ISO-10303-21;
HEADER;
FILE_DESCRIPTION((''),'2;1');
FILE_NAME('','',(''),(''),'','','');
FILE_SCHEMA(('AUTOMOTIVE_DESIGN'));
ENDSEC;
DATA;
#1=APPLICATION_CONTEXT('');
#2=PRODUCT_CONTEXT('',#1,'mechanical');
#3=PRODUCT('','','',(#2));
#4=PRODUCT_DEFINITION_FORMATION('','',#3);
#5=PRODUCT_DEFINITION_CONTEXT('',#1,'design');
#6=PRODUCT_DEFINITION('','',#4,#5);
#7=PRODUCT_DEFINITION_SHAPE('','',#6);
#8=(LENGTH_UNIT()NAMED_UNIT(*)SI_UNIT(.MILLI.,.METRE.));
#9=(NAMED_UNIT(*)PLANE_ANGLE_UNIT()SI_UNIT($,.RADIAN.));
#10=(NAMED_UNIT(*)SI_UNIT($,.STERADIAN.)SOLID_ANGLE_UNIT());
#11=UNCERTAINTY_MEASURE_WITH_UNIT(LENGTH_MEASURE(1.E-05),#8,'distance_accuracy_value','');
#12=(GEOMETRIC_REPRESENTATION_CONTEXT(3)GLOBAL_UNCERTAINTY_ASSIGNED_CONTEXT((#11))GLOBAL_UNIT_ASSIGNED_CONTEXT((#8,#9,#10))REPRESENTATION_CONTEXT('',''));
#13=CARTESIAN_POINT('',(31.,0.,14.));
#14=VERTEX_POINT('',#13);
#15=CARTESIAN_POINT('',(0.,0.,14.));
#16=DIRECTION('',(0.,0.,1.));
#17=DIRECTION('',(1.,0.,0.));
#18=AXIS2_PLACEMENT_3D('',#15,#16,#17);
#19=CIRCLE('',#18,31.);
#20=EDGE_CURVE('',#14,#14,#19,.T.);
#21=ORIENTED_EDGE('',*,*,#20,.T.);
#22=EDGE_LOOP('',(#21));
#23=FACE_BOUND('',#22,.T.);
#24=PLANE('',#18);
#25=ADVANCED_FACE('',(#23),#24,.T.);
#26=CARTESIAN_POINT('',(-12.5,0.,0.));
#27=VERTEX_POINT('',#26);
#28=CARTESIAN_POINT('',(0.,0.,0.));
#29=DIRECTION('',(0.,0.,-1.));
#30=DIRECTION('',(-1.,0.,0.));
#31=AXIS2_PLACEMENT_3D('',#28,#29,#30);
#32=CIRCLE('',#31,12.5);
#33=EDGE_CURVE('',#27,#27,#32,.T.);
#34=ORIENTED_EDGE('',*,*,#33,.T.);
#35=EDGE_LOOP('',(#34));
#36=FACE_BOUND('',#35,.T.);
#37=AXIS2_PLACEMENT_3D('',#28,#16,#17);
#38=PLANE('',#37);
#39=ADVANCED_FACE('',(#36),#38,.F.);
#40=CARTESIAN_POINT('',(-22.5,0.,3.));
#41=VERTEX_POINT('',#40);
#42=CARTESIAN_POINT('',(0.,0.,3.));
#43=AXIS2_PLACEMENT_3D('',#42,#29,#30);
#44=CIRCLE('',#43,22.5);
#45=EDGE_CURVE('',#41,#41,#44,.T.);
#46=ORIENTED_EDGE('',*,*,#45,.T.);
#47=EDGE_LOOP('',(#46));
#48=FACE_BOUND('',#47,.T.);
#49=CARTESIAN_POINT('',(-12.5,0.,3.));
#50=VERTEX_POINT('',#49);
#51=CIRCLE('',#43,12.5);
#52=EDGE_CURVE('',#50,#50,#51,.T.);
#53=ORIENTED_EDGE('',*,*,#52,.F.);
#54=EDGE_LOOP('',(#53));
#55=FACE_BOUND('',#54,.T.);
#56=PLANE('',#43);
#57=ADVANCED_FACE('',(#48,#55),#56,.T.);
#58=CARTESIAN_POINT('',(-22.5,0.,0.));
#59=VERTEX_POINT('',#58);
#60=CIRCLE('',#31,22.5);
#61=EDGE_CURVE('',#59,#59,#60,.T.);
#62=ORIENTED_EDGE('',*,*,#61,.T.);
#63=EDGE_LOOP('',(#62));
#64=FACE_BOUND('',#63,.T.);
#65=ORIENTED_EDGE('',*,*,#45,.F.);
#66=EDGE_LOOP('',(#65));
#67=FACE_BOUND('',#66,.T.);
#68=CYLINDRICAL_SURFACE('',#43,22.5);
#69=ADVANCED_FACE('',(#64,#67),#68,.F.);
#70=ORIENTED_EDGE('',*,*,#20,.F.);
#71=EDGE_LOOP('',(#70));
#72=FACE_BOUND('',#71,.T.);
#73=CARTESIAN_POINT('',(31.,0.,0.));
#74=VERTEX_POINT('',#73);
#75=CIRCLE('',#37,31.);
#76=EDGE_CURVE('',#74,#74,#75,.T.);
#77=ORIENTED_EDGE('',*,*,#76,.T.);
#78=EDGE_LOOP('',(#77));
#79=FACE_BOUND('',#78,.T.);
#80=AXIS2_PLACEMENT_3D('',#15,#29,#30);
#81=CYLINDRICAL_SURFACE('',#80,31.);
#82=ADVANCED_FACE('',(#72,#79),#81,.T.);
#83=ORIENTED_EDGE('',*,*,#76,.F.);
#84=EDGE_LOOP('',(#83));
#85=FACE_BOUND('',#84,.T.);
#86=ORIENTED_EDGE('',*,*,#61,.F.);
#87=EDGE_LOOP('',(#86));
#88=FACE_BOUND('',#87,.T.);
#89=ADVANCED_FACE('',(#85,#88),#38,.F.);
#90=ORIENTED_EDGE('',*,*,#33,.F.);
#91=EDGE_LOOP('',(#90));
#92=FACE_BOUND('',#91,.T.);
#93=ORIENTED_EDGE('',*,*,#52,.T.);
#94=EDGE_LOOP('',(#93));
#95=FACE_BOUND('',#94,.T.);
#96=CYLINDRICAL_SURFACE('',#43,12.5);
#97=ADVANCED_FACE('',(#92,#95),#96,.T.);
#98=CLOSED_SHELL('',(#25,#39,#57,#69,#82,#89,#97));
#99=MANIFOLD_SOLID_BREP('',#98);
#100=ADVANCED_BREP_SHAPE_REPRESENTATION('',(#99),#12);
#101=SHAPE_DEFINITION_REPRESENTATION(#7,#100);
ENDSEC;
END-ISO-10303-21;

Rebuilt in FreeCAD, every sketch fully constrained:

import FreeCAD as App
import Part
import Sketcher

V = App.Vector
Q = App.Units.Quantity

doc = App.newDocument("Part")
body = doc.addObject("PartDesign::Body", "Body")

sketch1 = body.newObject("Sketcher::SketchObject", "Sketch")
sketch1.AttachmentSupport = (doc.getObject("XY_Plane"), [""])
sketch1.MapMode = "FlatFace"
sketch1.addGeometry(Part.Circle(V(0, 0, 0), V(0, 0, 1), 31), False)
sketch1.addConstraint(Sketcher.Constraint("Coincident", 0, 3, -1, 1))
sketch1.addConstraint(Sketcher.Constraint("Diameter", 0, Q("62 mm")))
pad1 = body.newObject("PartDesign::Pad", "Pad")
pad1.Profile = sketch1
pad1.Length = 14

sketch2 = body.newObject("Sketcher::SketchObject", "Sketch001")
sketch2.AttachmentSupport = (doc.getObject("XY_Plane"), [""])
sketch2.MapMode = "FlatFace"
sketch2.addGeometry(Part.Circle(V(0, 0, 0), V(0, 0, 1), 22), False)
sketch2.addGeometry(Part.Circle(V(0, 0, 0), V(0, 0, 1), 12), False)
sketch2.addConstraint(Sketcher.Constraint("Coincident", 0, 3, -1, 1))
sketch2.addConstraint(Sketcher.Constraint("Coincident", 1, 3, -1, 1))
sketch2.addConstraint(Sketcher.Constraint("Diameter", 0, Q("45 mm")))
sketch2.addConstraint(Sketcher.Constraint("Diameter", 1, Q("25 mm")))
pocket1 = body.newObject("PartDesign::Pocket", "Pocket")
pocket1.Profile = sketch2
pocket1.Length = 3
pocket1.Reversed = True

doc.recompute()
